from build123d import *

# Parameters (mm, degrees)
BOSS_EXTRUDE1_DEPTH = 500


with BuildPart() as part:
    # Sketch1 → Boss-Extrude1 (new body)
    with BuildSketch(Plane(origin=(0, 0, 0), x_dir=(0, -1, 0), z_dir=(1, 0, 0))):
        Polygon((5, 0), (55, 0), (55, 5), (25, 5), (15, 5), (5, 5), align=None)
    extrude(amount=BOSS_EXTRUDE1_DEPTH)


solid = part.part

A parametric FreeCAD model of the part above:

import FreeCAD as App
import Part
import Sketcher
Q = App.Units.Quantity


def add_polygon(sketch, points):
    """Adds a closed chain of lines whose ends are joined by coincident constraints."""
    first, n = sketch.GeometryCount, len(points)
    for a, b in zip(points, points[1:] + points[:1]):
        sketch.addGeometry(Part.LineSegment(App.Vector(*a, 0), App.Vector(*b, 0)), False)
    for i in range(n):
        sketch.addConstraint(Sketcher.Constraint("Coincident", first + i, 2, first + (i + 1) % n, 1))

doc = App.newDocument("Part")
body = doc.addObject("PartDesign::Body", "Body")

# Sketch on YZ plane
sketch1 = body.newObject("Sketcher::SketchObject", "Sketch")
sketch1.AttachmentSupport = (doc.getObject("YZ_Plane"), [""])
sketch1.MapMode = "FlatFace"
add_polygon(sketch1, [(-5, 0), (-55, 0), (-55, -5), (-5, -5)])  # lines 0-3
sketch1.addConstraint([
    Sketcher.Constraint("Horizontal", 0),
    Sketcher.Constraint("Vertical", 1),
    Sketcher.Constraint("Horizontal", 2),
    Sketcher.Constraint("Vertical", 3),
    Sketcher.Constraint("PointOnObject", 0, 2, -1),
    Sketcher.Constraint("DistanceX", 0, 2, 0, 1, Q("50 mm")),
    Sketcher.Constraint("DistanceY", 1, 2, 1, 1, Q("5 mm")),
    Sketcher.Constraint("DistanceX", 0, 2, -1, 1, Q("55 mm")),
])
pad1 = body.newObject("PartDesign::Pad", "Pad")
pad1.Profile = sketch1
pad1.Length = 500

doc.recompute()
